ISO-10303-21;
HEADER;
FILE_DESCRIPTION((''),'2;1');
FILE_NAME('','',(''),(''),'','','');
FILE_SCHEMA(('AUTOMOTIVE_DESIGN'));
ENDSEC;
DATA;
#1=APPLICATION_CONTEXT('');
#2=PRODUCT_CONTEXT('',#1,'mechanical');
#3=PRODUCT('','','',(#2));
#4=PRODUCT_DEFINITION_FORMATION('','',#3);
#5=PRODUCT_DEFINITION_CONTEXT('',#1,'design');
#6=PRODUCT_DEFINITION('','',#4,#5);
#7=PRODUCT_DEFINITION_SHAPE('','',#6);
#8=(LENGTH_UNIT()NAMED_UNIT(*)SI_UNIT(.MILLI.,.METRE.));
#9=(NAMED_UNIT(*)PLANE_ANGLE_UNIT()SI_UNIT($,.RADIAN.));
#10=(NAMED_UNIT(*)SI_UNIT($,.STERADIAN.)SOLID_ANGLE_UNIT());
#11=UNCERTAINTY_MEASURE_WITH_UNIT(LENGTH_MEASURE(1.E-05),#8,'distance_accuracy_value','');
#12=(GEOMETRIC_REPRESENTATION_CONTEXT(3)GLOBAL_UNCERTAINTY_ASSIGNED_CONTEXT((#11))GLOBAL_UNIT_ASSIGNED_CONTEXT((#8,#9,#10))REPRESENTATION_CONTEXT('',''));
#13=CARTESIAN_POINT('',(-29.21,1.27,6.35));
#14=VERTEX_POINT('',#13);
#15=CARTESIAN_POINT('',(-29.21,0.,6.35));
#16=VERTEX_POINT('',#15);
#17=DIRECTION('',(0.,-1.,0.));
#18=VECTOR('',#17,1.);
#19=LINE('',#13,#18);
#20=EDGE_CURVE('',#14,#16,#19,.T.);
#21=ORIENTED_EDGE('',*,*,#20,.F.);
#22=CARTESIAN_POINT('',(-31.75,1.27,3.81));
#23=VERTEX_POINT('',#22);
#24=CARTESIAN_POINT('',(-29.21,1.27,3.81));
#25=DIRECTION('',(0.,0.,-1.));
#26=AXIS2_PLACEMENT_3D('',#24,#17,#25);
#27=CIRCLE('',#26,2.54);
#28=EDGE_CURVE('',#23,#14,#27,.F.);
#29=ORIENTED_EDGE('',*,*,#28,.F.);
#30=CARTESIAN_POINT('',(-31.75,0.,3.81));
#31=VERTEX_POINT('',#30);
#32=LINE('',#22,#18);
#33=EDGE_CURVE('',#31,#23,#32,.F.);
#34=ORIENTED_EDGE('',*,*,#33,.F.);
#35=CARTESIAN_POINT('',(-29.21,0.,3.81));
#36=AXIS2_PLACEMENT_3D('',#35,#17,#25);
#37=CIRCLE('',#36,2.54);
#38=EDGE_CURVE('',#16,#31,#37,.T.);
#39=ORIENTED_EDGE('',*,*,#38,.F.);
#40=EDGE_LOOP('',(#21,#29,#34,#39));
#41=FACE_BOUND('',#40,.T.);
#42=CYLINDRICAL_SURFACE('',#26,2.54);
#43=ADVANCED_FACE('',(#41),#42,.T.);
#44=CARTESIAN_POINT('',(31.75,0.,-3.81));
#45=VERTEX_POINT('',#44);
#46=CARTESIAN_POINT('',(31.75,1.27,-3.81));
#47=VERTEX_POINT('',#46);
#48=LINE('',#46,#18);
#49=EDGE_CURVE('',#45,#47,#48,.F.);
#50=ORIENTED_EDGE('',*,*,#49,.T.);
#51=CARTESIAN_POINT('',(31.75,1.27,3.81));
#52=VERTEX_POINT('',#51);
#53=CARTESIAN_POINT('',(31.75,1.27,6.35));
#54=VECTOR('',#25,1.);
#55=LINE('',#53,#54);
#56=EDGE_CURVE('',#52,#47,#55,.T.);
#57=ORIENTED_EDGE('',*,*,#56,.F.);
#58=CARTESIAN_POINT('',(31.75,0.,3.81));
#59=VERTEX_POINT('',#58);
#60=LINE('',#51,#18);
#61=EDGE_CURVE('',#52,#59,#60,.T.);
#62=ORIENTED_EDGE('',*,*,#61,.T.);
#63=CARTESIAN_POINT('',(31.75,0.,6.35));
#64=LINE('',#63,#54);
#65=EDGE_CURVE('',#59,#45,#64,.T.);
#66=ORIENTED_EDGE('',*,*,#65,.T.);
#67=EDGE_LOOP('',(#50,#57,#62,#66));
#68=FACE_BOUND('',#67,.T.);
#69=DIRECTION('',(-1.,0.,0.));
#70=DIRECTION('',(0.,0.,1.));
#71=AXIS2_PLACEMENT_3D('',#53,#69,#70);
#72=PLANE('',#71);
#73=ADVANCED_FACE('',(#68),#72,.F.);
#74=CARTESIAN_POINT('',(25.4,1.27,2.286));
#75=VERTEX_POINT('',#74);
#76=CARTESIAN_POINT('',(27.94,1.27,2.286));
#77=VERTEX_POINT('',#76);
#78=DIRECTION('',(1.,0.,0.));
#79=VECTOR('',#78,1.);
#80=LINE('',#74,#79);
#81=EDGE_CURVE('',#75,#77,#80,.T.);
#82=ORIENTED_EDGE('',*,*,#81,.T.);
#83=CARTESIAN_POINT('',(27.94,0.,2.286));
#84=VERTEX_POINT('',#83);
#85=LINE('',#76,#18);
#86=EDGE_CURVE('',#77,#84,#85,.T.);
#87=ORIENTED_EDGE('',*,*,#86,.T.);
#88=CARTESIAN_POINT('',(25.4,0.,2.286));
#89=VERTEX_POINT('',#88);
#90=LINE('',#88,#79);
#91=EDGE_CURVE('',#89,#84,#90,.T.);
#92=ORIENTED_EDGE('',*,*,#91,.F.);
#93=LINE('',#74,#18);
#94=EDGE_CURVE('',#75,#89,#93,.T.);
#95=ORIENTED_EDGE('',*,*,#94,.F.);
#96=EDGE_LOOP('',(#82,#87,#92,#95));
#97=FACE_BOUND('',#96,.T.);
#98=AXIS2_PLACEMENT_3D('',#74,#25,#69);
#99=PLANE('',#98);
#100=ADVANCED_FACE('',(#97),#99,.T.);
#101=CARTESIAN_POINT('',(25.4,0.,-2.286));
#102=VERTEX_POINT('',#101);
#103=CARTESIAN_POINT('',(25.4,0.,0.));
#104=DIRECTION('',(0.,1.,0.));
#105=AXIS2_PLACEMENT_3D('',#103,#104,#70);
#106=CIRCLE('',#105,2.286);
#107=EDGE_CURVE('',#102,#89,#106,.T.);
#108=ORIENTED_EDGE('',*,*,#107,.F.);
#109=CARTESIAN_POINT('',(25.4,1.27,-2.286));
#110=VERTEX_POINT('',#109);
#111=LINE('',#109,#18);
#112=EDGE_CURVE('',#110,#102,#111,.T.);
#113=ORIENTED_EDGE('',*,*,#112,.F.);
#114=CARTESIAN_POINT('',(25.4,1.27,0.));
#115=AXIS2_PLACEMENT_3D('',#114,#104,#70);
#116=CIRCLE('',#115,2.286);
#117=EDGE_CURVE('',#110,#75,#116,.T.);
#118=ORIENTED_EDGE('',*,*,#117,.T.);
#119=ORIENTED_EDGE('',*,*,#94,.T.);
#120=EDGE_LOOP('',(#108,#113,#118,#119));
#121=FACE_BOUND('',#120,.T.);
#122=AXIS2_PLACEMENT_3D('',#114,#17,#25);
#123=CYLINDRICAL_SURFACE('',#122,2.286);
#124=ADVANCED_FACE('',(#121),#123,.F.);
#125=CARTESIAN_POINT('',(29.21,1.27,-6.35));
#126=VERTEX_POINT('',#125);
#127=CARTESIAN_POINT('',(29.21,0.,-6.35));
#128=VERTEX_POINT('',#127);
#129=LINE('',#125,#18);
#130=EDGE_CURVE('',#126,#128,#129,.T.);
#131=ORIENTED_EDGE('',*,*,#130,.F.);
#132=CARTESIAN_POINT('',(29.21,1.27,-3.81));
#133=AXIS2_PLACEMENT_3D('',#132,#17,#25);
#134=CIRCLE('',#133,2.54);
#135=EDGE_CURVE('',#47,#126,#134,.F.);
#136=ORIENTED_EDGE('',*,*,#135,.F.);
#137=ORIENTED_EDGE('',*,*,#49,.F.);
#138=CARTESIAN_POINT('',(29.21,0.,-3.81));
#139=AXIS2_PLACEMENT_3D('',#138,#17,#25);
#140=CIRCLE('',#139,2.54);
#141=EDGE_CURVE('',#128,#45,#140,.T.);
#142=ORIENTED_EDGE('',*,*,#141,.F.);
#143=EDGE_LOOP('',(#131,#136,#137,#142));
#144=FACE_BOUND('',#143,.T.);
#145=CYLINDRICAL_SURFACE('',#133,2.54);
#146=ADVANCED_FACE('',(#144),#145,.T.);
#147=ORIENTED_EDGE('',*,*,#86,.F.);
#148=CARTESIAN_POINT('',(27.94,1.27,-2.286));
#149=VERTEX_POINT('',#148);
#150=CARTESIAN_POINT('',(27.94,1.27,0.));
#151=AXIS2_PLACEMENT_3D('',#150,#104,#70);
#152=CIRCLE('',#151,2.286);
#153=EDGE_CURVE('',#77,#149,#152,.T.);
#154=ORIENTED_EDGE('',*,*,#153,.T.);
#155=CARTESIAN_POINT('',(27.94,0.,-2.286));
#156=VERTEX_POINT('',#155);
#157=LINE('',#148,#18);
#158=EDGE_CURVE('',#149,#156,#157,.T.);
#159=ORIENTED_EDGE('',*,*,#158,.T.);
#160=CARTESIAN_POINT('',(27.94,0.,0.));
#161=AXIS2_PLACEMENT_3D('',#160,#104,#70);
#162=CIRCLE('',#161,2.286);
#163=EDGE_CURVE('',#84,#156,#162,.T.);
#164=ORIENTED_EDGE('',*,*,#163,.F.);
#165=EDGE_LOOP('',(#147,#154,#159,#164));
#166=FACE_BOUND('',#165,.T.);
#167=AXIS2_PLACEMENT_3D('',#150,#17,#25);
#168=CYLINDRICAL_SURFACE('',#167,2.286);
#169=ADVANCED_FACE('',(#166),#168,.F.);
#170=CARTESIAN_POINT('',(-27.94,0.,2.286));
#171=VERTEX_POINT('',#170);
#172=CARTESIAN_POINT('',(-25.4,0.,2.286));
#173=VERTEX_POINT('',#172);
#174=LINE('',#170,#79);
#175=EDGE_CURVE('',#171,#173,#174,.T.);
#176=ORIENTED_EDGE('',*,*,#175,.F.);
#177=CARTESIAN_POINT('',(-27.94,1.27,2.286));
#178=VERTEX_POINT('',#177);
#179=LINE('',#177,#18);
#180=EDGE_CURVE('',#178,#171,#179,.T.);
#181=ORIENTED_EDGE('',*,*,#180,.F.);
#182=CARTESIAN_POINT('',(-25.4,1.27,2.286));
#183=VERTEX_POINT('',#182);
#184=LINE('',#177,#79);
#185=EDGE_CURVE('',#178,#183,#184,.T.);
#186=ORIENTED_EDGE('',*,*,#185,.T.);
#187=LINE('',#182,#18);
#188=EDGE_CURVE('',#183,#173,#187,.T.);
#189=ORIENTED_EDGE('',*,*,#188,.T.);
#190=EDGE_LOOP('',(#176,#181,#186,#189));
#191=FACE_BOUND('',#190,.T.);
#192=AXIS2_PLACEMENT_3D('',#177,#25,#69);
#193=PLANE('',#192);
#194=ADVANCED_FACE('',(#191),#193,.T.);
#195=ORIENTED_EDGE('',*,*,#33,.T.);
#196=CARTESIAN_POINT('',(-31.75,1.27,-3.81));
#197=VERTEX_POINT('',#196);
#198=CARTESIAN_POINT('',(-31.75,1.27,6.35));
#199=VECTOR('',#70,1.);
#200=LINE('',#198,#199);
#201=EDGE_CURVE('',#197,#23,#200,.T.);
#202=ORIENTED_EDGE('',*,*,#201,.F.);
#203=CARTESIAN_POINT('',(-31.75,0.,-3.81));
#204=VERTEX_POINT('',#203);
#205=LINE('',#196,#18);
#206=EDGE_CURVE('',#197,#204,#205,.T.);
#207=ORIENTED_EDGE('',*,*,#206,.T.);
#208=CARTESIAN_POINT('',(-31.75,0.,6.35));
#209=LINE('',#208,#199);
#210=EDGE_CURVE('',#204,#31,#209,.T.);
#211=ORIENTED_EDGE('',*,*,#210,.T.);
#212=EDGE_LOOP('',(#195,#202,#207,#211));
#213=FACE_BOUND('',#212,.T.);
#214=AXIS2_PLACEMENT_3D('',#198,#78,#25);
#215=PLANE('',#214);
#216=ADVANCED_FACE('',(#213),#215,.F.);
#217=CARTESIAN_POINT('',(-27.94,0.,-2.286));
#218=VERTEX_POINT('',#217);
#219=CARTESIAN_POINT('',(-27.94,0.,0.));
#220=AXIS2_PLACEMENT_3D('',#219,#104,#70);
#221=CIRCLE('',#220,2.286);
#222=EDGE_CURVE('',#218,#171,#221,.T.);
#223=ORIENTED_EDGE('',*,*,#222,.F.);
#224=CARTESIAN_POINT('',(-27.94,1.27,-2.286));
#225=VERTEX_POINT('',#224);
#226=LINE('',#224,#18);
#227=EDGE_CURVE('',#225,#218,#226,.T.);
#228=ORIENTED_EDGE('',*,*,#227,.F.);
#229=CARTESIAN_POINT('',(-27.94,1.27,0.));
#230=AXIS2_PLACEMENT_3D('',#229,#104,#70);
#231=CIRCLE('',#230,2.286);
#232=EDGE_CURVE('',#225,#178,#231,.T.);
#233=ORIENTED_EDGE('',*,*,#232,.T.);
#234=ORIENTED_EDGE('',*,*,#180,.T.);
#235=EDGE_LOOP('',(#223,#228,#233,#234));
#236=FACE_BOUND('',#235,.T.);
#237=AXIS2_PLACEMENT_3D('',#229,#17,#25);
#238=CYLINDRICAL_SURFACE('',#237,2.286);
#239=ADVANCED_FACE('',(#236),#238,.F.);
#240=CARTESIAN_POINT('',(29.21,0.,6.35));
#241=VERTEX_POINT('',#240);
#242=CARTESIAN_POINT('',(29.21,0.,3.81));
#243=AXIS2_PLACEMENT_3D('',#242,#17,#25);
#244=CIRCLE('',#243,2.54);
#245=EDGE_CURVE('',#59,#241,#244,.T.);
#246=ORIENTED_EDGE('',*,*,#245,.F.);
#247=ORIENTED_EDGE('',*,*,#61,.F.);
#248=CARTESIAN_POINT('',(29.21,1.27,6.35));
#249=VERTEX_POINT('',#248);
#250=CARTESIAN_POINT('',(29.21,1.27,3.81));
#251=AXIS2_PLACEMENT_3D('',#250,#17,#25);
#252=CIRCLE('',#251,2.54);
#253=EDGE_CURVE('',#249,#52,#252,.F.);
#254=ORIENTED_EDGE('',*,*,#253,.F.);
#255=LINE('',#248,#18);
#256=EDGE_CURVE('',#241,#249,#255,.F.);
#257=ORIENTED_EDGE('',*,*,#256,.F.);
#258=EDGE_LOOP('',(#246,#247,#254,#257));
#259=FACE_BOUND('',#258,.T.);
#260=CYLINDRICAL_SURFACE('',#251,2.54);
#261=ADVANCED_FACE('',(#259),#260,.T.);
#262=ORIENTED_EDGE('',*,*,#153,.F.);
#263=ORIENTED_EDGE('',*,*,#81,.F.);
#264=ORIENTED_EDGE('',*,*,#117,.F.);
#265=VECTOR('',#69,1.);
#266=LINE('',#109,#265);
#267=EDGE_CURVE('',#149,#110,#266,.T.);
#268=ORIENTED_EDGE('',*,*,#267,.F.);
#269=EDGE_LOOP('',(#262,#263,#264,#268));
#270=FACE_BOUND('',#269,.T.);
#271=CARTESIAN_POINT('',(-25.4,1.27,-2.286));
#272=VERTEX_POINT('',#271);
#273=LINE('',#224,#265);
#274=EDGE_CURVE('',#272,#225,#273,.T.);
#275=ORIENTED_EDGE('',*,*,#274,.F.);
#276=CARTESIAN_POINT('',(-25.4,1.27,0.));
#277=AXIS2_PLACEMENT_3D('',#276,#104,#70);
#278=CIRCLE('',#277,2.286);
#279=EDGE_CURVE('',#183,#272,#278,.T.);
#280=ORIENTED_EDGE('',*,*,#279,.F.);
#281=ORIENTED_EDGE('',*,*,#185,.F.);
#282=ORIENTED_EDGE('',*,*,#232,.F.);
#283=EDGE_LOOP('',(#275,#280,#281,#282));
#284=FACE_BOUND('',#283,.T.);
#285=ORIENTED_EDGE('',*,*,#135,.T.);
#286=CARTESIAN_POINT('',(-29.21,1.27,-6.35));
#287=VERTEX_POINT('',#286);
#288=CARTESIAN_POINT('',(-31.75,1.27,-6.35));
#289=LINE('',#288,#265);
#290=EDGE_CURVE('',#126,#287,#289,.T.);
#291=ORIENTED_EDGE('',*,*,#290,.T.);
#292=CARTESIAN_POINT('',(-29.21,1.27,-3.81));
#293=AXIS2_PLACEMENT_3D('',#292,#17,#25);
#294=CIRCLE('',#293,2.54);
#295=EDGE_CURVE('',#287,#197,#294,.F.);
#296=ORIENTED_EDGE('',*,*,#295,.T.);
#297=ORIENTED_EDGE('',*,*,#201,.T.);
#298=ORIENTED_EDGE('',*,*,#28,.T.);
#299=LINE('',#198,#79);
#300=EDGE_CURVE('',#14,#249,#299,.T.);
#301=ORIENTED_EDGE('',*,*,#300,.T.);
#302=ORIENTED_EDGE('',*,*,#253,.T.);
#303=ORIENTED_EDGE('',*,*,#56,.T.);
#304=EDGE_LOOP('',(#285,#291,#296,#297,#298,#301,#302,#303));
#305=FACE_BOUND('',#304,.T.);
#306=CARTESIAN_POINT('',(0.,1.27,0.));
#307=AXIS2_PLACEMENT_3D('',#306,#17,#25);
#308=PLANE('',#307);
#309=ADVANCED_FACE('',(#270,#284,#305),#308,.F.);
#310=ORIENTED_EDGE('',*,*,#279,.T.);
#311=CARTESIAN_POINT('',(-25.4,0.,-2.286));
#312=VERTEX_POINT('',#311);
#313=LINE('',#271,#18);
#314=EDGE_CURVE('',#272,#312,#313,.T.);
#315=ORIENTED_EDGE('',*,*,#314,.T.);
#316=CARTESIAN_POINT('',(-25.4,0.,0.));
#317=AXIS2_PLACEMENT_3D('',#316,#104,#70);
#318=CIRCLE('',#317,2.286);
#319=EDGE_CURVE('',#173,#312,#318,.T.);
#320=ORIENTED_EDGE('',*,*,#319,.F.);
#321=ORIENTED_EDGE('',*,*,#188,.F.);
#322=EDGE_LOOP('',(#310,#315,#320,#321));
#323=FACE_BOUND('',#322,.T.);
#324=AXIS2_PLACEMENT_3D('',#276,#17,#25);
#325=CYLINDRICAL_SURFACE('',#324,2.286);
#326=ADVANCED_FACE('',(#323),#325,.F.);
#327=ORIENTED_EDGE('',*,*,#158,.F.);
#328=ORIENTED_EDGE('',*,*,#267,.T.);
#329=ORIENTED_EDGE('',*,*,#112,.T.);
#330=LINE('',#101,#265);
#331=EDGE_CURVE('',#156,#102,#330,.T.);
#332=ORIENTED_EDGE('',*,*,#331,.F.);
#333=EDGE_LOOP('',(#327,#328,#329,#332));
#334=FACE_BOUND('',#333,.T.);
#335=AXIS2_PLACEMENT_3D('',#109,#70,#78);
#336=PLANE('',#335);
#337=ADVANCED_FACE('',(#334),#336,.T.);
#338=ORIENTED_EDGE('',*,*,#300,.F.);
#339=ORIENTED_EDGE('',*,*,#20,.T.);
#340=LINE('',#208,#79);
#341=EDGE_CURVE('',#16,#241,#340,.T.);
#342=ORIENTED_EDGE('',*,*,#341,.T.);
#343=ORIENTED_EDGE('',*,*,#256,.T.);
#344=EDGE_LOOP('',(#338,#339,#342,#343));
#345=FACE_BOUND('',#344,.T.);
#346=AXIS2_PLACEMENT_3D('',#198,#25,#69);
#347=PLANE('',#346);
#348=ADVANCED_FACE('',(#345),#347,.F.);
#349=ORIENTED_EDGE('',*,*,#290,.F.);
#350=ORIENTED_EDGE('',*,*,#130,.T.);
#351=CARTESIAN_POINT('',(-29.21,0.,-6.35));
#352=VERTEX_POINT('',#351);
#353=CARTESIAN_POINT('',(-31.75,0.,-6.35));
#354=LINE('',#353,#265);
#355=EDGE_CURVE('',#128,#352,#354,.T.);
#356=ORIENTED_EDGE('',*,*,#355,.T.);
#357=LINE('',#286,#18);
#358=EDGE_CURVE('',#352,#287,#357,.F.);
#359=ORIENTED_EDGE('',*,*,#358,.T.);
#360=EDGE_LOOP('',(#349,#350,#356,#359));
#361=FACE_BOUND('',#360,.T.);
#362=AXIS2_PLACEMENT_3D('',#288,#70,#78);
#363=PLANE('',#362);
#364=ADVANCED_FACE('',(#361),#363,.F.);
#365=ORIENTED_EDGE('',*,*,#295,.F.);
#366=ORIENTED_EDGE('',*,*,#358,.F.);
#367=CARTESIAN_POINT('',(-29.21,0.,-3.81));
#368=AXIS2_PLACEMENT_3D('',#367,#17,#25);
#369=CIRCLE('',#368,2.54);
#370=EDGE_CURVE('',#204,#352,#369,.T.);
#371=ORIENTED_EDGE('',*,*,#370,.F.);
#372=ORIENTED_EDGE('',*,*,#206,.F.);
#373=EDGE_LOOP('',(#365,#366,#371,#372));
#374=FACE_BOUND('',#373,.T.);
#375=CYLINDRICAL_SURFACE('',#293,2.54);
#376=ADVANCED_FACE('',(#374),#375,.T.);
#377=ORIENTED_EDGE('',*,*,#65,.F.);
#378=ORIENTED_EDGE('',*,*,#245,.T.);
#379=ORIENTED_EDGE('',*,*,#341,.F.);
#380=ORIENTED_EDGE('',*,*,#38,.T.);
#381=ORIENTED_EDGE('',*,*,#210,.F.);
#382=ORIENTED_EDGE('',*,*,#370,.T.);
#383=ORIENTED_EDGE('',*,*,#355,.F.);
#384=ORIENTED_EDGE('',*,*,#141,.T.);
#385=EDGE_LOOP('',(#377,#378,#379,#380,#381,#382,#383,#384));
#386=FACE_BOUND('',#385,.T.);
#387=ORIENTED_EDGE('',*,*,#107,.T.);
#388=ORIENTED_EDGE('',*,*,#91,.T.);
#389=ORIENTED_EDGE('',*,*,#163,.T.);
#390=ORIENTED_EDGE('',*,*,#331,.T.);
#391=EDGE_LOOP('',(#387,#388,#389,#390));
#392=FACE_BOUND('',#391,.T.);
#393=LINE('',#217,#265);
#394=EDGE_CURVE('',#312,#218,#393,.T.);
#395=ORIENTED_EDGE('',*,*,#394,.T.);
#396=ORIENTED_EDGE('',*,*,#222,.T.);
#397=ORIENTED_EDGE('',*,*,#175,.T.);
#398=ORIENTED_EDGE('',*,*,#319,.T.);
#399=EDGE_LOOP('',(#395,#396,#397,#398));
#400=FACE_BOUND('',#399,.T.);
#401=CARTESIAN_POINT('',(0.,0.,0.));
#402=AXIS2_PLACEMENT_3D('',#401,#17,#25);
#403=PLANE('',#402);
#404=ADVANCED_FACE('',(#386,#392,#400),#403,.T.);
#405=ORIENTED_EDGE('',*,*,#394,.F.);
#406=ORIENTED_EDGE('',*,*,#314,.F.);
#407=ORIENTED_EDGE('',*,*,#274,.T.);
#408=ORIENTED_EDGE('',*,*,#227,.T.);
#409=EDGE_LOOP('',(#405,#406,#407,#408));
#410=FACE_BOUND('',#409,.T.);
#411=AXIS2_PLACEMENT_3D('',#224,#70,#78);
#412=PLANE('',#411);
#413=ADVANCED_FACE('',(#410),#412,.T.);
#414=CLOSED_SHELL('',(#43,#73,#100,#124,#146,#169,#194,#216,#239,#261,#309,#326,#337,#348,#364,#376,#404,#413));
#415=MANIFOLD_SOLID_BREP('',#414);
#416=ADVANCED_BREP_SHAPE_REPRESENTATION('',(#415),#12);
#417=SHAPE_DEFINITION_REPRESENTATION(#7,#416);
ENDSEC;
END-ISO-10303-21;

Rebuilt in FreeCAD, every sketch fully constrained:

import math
import FreeCAD as App
import Part
import Sketcher
from FreeCAD import Vector
Q = App.Units.Quantity


def edges_at(feature, points):
    """Names of the edges that pass closest to the given points."""
    edges = feature.Shape.Edges
    near = lambda p: min(range(len(edges)), key=lambda i: edges[i].distToShape(Part.Vertex(*p))[0])
    return sorted({f"Edge{near(p) + 1}" for p in points})


def add_polygon(sketch, points):
    """Adds a closed chain of lines whose ends are joined by coincident constraints."""
    first, n = sketch.GeometryCount, len(points)
    for a, b in zip(points, points[1:] + points[:1]):
        sketch.addGeometry(Part.LineSegment(App.Vector(*a, 0), App.Vector(*b, 0)), False)
    for i in range(n):
        sketch.addConstraint(Sketcher.Constraint("Coincident", first + i, 2, first + (i + 1) % n, 1))

doc = App.newDocument("Part")
body = doc.addObject("PartDesign::Body", "Body")

sketch1 = body.newObject("Sketcher::SketchObject", "Sketch")
sketch1.AttachmentSupport = (doc.getObject("XZ_Plane"), [""])
sketch1.MapMode = "FlatFace"
add_polygon(sketch1, [(-31.8, -6.3), (-31.8, 6.3), (31.8, 6.3), (31.8, -6.3)])
sketch1.addGeometry(Part.ArcOfCircle(Part.Circle(Vector(-27.9, 0, 0), Vector(0, 0, 1), 2.3), math.radians(90), math.radians(270)), False)
sketch1.addGeometry(Part.LineSegment(Vector(-27.9, -2.3, 0), Vector(-25.4, -2.3, 0)), False)
sketch1.addGeometry(Part.ArcOfCircle(Part.Circle(Vector(-25.4, 0, 0), Vector(0, 0, 1), 2.3), math.radians(-90), math.radians(90)), False)
sketch1.addGeometry(Part.LineSegment(Vector(-25.4, 2.3, 0), Vector(-27.9, 2.3, 0)), False)
sketch1.addGeometry(Part.ArcOfCircle(Part.Circle(Vector(25.4, 0, 0), Vector(0, 0, 1), 2.3), math.radians(90), math.radians(270)), False)
sketch1.addGeometry(Part.LineSegment(Vector(25.4, -2.3, 0), Vector(27.9, -2.3, 0)), False)
sketch1.addGeometry(Part.ArcOfCircle(Part.Circle(Vector(27.9, 0, 0), Vector(0, 0, 1), 2.3), math.radians(-90), math.radians(90)), False)
sketch1.addGeometry(Part.LineSegment(Vector(27.9, 2.3, 0), Vector(25.4, 2.3, 0)), False)
sketch1.addConstraint([
    Sketcher.Constraint("Tangent", 4, 2, 5, 1),
    Sketcher.Constraint("Tangent", 5, 2, 6, 1),
    Sketcher.Constraint("Tangent", 6, 2, 7, 1),
    Sketcher.Constraint("Tangent", 7, 2, 4, 1),
    Sketcher.Constraint("Tangent", 8, 2, 9, 1),
    Sketcher.Constraint("Tangent", 9, 2, 10, 1),
    Sketcher.Constraint("Tangent", 10, 2, 11, 1),
    Sketcher.Constraint("Tangent", 11, 2, 8, 1),
    Sketcher.Constraint("Vertical", 0),
    Sketcher.Constraint("Horizontal", 1),
    Sketcher.Constraint("Vertical", 2),
    Sketcher.Constraint("Horizontal", 3),
    Sketcher.Constraint("Horizontal", 5),
    Sketcher.Constraint("Horizontal", 7),
    Sketcher.Constraint("Horizontal", 9),
    Sketcher.Constraint("Horizontal", 11),
    Sketcher.Constraint("Equal", 6, 8),
    Sketcher.Constraint("Symmetric", 6, 3, 8, 3, -1, 1),
    Sketcher.Constraint("Symmetric", 0, 2, 2, 2, -1, 1),
    Sketcher.Constraint("Symmetric", 4, 3, 10, 3, -2),
    Sketcher.Constraint("Radius", 4, Q("0.09 in")),
    Sketcher.Constraint("DistanceX", 1, 1, 1, 2, Q("2.5 in")),
    Sketcher.Constraint("DistanceX", 5, 1, 5, 2, Q("0.1 in")),
    Sketcher.Constraint("DistanceY", 0, 1, 0, 2, Q("0.5 in")),
    Sketcher.Constraint("DistanceX", 6, 3, -1, 1, Q("1 in")),
])
pad1 = body.newObject("PartDesign::Pad", "Pad")
pad1.Profile = sketch1
pad1.Length = Q("0.05 in")
pad1.Reversed = True
doc.recompute()

fillet = body.newObject("PartDesign::Fillet", "Fillet")
fillet.Base = (pad1, edges_at(pad1, [
    (-31.75, 0.635, -6.35),
    (31.75, 0.635, -6.35),
    (31.75, 0.635, 6.35),
    (-31.75, 0.635, 6.35),
]))
fillet.Radius = Q("0.1 in")

doc.recompute()
